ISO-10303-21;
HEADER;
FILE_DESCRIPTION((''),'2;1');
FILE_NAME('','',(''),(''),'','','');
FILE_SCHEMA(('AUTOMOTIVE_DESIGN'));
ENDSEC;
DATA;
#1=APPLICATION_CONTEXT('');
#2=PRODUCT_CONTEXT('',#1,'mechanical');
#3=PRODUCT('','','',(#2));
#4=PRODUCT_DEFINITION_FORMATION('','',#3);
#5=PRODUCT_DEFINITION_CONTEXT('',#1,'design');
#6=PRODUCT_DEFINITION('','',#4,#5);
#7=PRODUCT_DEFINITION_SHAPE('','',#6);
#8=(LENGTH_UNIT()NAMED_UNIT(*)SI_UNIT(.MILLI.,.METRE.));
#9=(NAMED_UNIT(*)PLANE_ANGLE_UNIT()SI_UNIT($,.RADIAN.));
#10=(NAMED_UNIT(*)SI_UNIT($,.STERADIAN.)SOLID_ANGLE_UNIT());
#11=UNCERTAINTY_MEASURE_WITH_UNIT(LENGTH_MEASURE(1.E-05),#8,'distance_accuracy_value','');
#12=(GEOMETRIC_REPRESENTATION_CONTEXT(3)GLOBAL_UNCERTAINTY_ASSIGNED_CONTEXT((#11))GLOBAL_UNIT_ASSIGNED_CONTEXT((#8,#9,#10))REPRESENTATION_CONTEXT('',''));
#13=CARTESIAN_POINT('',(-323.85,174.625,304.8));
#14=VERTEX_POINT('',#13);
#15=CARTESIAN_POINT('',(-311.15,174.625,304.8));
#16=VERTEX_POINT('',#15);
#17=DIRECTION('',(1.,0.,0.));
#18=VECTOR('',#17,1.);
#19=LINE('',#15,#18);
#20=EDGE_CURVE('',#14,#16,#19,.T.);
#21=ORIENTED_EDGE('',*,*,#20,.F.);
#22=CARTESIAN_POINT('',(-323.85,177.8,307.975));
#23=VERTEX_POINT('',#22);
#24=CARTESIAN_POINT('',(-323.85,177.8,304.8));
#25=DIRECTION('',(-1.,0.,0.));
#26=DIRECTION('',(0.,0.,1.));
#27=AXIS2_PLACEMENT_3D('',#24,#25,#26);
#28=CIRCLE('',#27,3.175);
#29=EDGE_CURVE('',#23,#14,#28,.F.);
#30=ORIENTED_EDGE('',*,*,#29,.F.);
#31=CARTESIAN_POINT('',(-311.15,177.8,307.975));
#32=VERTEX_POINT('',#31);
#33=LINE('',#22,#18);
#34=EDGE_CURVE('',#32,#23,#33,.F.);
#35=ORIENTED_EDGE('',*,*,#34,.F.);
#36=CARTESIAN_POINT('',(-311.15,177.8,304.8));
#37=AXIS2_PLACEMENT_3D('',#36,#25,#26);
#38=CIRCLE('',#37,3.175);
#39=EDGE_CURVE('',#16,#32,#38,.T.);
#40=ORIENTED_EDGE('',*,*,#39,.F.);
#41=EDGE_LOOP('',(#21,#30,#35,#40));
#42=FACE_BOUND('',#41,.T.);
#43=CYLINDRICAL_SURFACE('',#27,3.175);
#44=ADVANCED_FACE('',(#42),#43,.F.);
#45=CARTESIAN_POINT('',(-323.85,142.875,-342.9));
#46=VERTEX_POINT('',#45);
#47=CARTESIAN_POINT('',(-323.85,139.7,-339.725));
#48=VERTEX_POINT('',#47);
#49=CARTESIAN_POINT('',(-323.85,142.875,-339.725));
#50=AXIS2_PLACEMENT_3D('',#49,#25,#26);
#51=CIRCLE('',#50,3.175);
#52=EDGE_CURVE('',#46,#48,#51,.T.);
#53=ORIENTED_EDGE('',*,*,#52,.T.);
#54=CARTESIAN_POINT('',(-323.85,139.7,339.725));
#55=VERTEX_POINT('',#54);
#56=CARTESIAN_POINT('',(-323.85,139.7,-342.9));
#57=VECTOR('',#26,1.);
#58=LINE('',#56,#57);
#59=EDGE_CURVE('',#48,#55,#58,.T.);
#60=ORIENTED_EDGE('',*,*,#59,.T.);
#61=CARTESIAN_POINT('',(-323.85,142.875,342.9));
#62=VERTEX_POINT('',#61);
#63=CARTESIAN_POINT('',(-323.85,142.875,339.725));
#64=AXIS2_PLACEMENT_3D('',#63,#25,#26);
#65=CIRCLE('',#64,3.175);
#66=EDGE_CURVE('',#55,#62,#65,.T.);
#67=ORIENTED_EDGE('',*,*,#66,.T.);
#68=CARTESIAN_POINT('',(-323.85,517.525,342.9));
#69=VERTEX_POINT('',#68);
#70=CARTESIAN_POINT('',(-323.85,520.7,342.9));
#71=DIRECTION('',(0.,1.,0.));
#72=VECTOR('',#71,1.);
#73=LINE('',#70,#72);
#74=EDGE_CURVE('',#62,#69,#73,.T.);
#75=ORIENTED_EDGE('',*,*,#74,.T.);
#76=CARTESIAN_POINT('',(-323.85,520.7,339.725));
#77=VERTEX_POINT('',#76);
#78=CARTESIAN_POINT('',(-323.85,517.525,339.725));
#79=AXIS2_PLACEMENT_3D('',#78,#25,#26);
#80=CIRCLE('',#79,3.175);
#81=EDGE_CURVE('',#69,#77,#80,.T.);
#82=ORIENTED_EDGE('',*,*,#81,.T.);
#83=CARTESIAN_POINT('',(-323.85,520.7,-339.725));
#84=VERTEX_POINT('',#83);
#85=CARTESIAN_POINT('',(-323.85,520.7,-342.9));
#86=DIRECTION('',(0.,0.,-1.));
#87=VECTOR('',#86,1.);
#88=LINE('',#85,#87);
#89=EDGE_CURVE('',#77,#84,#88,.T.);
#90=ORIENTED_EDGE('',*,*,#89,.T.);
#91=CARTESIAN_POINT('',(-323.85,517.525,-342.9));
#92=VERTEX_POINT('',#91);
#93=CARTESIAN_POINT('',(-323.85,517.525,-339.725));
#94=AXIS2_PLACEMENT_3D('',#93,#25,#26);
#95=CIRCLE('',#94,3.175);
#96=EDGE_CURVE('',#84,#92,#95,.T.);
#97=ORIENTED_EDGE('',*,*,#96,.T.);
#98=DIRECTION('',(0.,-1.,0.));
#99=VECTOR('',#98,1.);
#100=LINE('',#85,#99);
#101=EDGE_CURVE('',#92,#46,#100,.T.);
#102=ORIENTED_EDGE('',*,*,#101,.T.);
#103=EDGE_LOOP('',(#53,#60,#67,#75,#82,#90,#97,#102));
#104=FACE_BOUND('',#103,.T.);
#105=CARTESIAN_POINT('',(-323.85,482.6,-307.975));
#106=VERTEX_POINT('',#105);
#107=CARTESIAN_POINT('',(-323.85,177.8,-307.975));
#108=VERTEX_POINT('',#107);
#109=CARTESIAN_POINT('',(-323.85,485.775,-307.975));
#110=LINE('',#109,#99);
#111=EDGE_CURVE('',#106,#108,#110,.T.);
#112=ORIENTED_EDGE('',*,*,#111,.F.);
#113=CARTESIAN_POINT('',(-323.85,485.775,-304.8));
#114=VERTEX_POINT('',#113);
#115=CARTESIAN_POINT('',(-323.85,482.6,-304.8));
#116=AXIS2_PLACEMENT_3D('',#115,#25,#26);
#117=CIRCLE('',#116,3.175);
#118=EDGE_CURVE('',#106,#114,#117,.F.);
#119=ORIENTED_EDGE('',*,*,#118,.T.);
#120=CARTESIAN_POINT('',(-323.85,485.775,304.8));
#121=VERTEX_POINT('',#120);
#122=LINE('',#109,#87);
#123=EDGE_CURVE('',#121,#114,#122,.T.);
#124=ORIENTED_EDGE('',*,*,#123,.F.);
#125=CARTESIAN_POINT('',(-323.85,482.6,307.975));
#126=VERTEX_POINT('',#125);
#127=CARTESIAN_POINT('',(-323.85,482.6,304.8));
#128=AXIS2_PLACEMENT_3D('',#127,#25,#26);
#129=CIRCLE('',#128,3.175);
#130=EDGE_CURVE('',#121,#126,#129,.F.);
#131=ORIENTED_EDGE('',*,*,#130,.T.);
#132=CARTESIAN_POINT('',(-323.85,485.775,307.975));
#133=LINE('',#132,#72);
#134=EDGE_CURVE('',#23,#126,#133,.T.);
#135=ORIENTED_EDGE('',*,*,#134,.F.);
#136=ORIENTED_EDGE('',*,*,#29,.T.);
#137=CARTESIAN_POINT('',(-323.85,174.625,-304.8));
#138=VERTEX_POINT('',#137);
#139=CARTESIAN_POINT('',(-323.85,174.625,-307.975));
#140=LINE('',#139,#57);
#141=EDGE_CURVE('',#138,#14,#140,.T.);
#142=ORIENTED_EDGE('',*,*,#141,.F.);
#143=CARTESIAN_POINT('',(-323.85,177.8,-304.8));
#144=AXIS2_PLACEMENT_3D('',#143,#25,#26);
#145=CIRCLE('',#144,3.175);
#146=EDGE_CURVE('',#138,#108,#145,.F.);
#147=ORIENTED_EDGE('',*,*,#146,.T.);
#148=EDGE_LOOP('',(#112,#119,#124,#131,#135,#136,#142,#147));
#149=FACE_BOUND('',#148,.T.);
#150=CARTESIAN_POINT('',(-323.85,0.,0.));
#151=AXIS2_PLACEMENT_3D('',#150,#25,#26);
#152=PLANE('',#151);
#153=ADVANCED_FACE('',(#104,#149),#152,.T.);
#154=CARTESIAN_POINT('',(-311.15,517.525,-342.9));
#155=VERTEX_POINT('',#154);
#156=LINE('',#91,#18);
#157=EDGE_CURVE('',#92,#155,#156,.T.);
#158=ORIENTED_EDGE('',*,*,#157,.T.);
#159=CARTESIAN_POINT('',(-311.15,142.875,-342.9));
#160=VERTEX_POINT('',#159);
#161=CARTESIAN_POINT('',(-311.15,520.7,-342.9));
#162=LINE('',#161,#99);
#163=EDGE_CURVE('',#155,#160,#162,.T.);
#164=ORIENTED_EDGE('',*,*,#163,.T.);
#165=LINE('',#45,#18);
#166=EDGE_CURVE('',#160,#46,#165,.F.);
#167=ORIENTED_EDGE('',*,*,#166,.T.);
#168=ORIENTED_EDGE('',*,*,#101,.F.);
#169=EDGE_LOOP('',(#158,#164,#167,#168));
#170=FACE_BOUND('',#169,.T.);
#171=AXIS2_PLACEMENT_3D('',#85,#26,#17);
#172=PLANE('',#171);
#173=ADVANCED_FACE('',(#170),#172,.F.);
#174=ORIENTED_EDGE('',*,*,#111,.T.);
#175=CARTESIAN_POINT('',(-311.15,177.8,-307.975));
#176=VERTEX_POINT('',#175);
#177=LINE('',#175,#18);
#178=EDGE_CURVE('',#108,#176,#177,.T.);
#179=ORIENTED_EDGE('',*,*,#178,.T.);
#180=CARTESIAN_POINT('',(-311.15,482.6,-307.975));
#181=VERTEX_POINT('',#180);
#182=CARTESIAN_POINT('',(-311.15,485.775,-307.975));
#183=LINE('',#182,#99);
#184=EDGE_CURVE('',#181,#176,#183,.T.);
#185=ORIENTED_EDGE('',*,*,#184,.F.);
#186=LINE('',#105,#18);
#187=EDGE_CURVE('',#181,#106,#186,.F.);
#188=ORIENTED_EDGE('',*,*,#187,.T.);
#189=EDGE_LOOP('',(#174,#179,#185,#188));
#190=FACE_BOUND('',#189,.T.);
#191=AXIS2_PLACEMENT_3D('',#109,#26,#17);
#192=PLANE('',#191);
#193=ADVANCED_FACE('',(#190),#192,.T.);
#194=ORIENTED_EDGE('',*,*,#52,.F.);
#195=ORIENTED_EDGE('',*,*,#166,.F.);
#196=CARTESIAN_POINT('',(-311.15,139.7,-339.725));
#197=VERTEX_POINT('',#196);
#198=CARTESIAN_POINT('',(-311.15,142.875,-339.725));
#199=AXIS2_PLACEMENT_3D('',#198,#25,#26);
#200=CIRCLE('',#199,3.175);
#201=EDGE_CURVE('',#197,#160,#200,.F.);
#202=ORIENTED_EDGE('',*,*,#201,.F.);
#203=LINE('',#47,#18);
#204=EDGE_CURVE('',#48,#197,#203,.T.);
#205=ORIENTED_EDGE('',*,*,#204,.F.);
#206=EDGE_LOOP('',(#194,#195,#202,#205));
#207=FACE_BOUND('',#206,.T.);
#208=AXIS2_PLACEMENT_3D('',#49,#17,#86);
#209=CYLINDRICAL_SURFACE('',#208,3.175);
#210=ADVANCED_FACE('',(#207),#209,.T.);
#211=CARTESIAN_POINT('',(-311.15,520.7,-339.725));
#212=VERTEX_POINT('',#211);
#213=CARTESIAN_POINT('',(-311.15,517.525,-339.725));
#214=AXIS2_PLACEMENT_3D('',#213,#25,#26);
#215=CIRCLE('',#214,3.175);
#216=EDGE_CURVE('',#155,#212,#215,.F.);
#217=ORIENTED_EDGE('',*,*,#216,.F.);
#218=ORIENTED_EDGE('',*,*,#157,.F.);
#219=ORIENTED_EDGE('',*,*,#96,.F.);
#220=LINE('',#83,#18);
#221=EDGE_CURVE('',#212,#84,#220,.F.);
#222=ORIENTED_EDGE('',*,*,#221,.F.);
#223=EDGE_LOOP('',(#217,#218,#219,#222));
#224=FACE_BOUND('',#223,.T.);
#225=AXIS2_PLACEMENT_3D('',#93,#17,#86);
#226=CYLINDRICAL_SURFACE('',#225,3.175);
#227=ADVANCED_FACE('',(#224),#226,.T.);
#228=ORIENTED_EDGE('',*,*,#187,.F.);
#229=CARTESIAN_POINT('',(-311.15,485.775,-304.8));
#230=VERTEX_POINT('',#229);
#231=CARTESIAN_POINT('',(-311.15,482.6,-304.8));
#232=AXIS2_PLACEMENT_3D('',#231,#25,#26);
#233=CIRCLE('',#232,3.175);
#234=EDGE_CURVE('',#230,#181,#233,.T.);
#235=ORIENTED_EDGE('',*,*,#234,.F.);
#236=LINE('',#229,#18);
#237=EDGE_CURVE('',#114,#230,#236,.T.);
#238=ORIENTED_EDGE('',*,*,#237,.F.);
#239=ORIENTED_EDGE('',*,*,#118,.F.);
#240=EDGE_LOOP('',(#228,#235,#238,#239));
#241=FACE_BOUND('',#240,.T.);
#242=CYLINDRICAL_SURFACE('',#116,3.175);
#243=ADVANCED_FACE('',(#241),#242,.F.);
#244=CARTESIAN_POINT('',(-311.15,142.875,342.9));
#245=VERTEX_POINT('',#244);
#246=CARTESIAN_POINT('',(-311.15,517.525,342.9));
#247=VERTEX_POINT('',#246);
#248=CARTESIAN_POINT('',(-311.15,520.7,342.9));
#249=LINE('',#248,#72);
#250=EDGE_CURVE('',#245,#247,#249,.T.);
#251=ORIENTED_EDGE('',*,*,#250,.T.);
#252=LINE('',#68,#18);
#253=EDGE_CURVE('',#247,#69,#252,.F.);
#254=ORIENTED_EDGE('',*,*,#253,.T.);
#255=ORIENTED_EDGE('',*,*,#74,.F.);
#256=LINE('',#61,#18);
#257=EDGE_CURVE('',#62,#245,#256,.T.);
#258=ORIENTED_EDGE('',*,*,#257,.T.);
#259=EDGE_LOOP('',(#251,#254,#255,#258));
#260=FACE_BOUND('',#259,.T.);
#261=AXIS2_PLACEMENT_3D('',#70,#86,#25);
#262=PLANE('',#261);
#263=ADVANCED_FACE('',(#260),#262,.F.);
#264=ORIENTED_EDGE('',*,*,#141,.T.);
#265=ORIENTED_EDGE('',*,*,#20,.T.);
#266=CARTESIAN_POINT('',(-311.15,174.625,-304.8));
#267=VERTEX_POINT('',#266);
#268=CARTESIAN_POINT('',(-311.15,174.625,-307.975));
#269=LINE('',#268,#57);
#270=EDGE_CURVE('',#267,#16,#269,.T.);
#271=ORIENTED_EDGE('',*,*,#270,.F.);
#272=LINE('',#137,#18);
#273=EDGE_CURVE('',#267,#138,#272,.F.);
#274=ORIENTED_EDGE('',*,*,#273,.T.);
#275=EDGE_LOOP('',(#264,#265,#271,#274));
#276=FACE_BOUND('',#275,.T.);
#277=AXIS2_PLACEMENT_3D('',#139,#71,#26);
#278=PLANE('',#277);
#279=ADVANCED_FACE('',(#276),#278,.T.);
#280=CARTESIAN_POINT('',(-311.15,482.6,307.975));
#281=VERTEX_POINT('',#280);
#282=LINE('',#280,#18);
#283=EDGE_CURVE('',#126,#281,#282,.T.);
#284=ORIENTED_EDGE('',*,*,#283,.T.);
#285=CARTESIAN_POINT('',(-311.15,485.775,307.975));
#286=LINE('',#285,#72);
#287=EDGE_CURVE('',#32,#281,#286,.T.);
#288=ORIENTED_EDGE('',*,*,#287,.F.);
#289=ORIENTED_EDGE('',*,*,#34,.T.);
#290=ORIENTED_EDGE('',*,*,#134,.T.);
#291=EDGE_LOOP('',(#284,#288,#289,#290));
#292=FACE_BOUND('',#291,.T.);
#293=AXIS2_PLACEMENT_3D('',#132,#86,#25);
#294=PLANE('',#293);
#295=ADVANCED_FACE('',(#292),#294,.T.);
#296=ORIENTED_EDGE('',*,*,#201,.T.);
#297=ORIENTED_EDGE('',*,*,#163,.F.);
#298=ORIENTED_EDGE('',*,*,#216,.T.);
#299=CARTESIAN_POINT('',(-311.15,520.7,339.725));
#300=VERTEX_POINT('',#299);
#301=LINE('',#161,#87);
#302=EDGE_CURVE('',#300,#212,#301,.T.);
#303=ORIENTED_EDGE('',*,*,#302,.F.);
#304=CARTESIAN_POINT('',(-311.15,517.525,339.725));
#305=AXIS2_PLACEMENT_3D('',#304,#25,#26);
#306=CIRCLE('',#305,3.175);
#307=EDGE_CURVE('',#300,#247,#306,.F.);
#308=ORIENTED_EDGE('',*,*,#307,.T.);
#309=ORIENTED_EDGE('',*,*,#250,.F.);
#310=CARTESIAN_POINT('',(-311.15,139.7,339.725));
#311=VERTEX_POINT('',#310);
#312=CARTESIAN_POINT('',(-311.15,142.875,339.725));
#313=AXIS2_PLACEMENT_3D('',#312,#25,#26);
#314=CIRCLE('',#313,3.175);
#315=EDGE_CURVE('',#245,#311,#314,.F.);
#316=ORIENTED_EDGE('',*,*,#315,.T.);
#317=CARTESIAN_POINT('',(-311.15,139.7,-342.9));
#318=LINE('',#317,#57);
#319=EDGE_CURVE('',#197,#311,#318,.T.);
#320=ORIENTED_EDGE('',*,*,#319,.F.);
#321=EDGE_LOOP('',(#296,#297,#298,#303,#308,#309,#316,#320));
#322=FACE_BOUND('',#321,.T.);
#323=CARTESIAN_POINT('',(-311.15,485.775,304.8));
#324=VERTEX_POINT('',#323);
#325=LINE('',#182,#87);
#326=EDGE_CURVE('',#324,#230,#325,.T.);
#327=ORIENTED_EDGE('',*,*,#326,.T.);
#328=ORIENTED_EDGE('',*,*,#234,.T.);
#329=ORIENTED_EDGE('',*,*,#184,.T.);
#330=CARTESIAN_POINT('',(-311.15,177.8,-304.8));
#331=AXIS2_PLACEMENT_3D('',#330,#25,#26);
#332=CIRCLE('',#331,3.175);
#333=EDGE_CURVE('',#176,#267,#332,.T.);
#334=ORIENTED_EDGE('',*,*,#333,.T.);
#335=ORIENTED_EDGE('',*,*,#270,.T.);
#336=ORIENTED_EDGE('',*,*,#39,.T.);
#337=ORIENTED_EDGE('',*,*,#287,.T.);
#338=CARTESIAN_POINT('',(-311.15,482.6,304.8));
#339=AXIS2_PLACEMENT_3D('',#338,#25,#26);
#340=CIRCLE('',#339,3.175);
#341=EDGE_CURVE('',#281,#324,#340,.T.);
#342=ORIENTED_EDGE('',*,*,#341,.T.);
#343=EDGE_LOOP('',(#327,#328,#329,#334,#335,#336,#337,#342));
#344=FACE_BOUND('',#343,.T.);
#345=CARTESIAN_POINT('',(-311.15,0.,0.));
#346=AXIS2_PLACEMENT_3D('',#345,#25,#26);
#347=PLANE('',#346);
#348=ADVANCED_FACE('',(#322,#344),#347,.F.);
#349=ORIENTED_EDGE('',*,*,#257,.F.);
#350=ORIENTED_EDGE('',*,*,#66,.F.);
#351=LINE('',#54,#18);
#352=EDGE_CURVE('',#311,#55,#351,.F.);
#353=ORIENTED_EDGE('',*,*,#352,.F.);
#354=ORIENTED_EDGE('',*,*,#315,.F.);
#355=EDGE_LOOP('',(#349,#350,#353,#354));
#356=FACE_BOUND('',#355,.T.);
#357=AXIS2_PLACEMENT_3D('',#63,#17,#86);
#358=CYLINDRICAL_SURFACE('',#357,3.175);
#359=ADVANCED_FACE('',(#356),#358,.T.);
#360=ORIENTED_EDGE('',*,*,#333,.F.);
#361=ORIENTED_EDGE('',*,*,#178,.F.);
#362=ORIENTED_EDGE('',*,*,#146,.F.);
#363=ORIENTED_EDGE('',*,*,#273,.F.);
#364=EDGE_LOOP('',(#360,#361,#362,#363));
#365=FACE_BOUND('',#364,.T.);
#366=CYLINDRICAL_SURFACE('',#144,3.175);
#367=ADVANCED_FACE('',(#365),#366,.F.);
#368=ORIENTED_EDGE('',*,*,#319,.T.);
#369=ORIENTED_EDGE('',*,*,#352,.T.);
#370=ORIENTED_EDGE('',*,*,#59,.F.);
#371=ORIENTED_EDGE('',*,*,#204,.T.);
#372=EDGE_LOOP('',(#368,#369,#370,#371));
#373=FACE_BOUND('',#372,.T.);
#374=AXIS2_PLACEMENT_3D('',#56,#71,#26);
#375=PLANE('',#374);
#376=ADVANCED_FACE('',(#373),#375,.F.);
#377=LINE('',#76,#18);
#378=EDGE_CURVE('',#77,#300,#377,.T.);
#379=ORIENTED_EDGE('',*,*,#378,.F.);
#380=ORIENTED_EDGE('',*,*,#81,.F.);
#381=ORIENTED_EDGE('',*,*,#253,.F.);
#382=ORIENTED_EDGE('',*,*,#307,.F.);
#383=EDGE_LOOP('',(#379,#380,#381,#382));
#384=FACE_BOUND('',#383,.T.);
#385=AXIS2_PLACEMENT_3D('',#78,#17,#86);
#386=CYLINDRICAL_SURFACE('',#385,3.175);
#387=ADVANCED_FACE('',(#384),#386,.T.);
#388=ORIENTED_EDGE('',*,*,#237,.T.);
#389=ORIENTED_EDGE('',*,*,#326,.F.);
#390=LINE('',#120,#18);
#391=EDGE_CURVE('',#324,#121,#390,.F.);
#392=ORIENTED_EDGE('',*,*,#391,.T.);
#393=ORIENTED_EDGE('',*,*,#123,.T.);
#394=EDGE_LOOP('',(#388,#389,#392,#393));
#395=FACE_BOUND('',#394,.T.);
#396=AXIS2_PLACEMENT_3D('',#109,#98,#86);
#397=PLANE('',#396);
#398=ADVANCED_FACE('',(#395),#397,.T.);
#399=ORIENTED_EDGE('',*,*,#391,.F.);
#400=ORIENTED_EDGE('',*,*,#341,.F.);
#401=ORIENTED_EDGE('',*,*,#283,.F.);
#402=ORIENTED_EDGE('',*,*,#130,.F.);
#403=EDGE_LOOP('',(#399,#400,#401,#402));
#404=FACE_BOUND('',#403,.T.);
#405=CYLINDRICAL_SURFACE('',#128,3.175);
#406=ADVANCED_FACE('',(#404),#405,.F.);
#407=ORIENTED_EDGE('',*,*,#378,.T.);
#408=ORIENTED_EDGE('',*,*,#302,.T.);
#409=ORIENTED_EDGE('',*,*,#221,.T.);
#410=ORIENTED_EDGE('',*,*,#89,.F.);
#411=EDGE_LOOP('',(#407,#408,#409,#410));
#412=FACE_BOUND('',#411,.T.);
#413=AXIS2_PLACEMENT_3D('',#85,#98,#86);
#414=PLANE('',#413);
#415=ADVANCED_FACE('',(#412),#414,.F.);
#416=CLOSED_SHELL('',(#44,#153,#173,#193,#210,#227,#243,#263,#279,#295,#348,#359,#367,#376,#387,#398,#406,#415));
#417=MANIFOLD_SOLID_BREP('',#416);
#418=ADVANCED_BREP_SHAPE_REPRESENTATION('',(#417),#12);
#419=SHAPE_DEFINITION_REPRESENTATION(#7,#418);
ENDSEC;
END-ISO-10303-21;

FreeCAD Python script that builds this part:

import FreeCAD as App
import Part
import Sketcher
from FreeCAD import Vector
Q = App.Units.Quantity


def edges_at(feature, points):
    """Names of the edges that pass closest to the given points."""
    edges = feature.Shape.Edges
    near = lambda p: min(range(len(edges)), key=lambda i: edges[i].distToShape(Part.Vertex(*p))[0])
    return sorted({f"Edge{near(p) + 1}" for p in points})

doc = App.newDocument("Part")
params = doc.addObject("Spreadsheet::Sheet", "Params")
for row, (alias, value) in enumerate([
    ("sketch1_width", "15 in"),
    ("sketch1_height", "27 in"),
    ("sketch1_width2", "12.25 in"),
    ("sketch1_height2", "24.25 in"),
    ("pad1_length", "0.5 in"),
    ("fillet_radius", "0.125 in"),
], start=1):
    params.set(f"A{row}", alias)
    params.set(f"B{row}", "=" + value)
    params.setAlias(f"B{row}", alias)

body = doc.addObject("PartDesign::Body", "Body")

sketch1 = doc.addObject("Sketcher::SketchObject", "Sketch")
body.addObject(sketch1)
sketch1.AttachmentSupport = (doc.YZ_Plane, [""])
sketch1.MapMode = "FlatFace"
sketch1.AttachmentOffset = App.Placement(Vector(0, 0, -12.25 * 25.4), App.Rotation())
sketch1.addGeometry([
    Part.LineSegment(Vector(520.7, -342.9, 0), Vector(139.7, -342.9, 0)),
    Part.LineSegment(Vector(139.7, -342.9, 0), Vector(139.7, 342.9, 0)),
    Part.LineSegment(Vector(139.7, 342.9, 0), Vector(520.7, 342.9, 0)),
    Part.LineSegment(Vector(520.7, 342.9, 0), Vector(520.7, -342.9, 0)),
    Part.LineSegment(Vector(174.625, 307.975, 0), Vector(174.625, -307.975, 0)),
    Part.LineSegment(Vector(174.625, -307.975, 0), Vector(485.775, -307.975, 0)),
    Part.LineSegment(Vector(485.775, -307.975, 0), Vector(485.775, 307.975, 0)),
    Part.LineSegment(Vector(485.775, 307.975, 0), Vector(174.625, 307.975, 0)),
], False)
sketch1.addConstraint([
    Sketcher.Constraint("Coincident", 0, 2, 1, 1),
    Sketcher.Constraint("Coincident", 1, 2, 2, 1),
    Sketcher.Constraint("Coincident", 2, 2, 3, 1),
    Sketcher.Constraint("Coincident", 3, 2, 0, 1),
    Sketcher.Constraint("Coincident", 4, 2, 5, 1),
    Sketcher.Constraint("Coincident", 5, 2, 6, 1),
    Sketcher.Constraint("Coincident", 6, 2, 7, 1),
    Sketcher.Constraint("Coincident", 7, 2, 4, 1),
    Sketcher.Constraint("Horizontal", 0),
    Sketcher.Constraint("Vertical", 1),
    Sketcher.Constraint("Horizontal", 2),
    Sketcher.Constraint("Vertical", 3),
    Sketcher.Constraint("Vertical", 4),
    Sketcher.Constraint("Horizontal", 5),
    Sketcher.Constraint("Vertical", 6),
    Sketcher.Constraint("Horizontal", 7),
    Sketcher.Constraint("DistanceX", 0, 2, 0, 1, Q("15 in")),
    Sketcher.Constraint("DistanceY", 1, 1, 1, 2, Q("27 in")),
    Sketcher.Constraint("DistanceX", 5, 1, 5, 2, Q("12.25 in")),
    Sketcher.Constraint("DistanceY", 4, 2, 4, 1, Q("24.25 in")),
    Sketcher.Constraint("DistanceX", -1, 1, 0, 2, Q("5.5 in")),
    Sketcher.Constraint("DistanceY", 0, 2, -1, 1, Q("13.5 in")),
    Sketcher.Constraint("DistanceX", -1, 1, 4, 2, Q("6.875 in")),
    Sketcher.Constraint("DistanceY", 4, 2, -1, 1, Q("12.125 in")),
])
sketch1.setExpression("Constraints[16]", "Params.sketch1_width")
sketch1.setExpression("Constraints[17]", "Params.sketch1_height")
sketch1.setExpression("Constraints[18]", "Params.sketch1_width2")
sketch1.setExpression("Constraints[19]", "Params.sketch1_height2")
pad1 = doc.addObject("PartDesign::Pad", "Pad")
body.addObject(pad1)
pad1.Profile = sketch1
pad1.setExpression("Length", "Params.pad1_length")
pad1.Reversed = True
doc.recompute()

fillet = doc.addObject("PartDesign::Fillet", "Fillet")
body.addObject(fillet)
fillet.Base = (pad1, edges_at(pad1, [
    (-317.5, 485.775, -307.975),
    (-317.5, 174.625, -307.975),
    (-317.5, 174.625, 307.975),
    (-317.5, 485.775, 307.975),
    (-317.5, 520.7, -342.9),
    (-317.5, 520.7, 342.9),
    (-317.5, 139.7, 342.9),
    (-317.5, 139.7, -342.9),
]))
fillet.setExpression("Radius", "Params.fillet_radius")

doc.recompute()
